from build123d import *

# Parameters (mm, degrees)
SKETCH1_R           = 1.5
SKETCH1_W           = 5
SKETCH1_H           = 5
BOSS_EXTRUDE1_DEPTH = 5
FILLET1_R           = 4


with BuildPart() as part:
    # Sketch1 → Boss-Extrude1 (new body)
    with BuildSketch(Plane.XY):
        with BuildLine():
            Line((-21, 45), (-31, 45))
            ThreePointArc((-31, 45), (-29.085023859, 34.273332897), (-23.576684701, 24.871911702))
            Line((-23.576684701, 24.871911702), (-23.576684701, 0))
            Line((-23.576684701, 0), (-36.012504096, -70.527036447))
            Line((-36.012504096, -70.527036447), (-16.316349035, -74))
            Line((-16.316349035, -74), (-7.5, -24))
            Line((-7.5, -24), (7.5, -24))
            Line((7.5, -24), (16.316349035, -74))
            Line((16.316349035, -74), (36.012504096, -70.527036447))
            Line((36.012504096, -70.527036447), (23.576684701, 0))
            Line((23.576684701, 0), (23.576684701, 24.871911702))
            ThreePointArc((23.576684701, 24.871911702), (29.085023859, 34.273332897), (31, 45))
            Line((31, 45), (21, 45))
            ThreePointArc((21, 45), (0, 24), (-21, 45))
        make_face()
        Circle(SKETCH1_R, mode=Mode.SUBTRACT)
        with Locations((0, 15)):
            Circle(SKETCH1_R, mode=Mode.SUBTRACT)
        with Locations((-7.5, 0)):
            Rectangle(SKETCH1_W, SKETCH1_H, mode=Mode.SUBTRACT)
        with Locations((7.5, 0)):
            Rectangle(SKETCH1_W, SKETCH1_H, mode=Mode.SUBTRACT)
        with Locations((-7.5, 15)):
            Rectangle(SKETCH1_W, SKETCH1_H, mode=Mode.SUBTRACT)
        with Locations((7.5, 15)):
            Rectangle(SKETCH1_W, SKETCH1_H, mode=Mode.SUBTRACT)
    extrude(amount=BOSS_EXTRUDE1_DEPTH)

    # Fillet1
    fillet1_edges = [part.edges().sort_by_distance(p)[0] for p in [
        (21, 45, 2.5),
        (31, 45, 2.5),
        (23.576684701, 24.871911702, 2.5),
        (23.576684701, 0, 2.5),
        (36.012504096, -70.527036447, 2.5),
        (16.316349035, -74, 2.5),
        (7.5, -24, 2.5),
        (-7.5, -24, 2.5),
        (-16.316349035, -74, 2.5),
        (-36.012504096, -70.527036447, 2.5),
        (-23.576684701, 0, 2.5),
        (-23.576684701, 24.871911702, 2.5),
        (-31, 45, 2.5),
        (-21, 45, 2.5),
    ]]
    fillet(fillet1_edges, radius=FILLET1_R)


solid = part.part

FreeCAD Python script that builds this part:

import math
import FreeCAD as App
import Part
import Sketcher

V = App.Vector
Q = App.Units.Quantity


def edges_at(feature, points):
    """Names of the edges that pass closest to the given points."""
    edges = feature.Shape.Edges
    near = lambda p: min(range(len(edges)), key=lambda i: edges[i].distToShape(Part.Vertex(*p))[0])
    return sorted({f"Edge{near(p) + 1}" for p in points})


def add_polygon(sketch, points):
    """Adds a closed chain of lines whose ends are joined by coincident constraints."""
    first, n = sketch.GeometryCount, len(points)
    for a, b in zip(points, points[1:] + points[:1]):
        sketch.addGeometry(Part.LineSegment(App.Vector(*a, 0), App.Vector(*b, 0)), False)
    for i in range(n):
        sketch.addConstraint(Sketcher.Constraint("Coincident", first + i, 2, first + (i + 1) % n, 1))

doc = App.newDocument("Part")
body = doc.addObject("PartDesign::Body", "Body")

# Sketch on XY plane
sketch1 = body.newObject("Sketcher::SketchObject", "Sketch")
sketch1.AttachmentSupport = (doc.getObject("XY_Plane"), [""])
sketch1.MapMode = "FlatFace"
sketch1.addGeometry(Part.LineSegment(V(-21, 45, 0), V(-31, 45, 0)), False)  # 0
sketch1.addGeometry(Part.ArcOfCircle(Part.Circle(V(0, 45, 0), V(0, 0, 1), 31), math.radians(180), math.radians(220.488331)), False)  # 1
sketch1.addGeometry(Part.LineSegment(V(-23.576685, 24.871912, 0), V(-23.576685, 0, 0)), False)  # 2
sketch1.addGeometry(Part.LineSegment(V(-23.576685, 0, 0), V(-36.012504, -70.527036, 0)), False)  # 3
sketch1.addGeometry(Part.LineSegment(V(-36.012504, -70.527036, 0), V(-16.316349, -74, 0)), False)  # 4
sketch1.addGeometry(Part.LineSegment(V(-16.316349, -74, 0), V(-7.5, -24, 0)), False)  # 5
sketch1.addGeometry(Part.LineSegment(V(-7.5, -24, 0), V(7.5, -24, 0)), False)  # 6
sketch1.addGeometry(Part.LineSegment(V(7.5, -24, 0), V(16.316349, -74, 0)), False)  # 7
sketch1.addGeometry(Part.LineSegment(V(16.316349, -74, 0), V(36.012504, -70.527036, 0)), False)  # 8
sketch1.addGeometry(Part.LineSegment(V(36.012504, -70.527036, 0), V(23.576685, 0, 0)), False)  # 9
sketch1.addGeometry(Part.LineSegment(V(23.576685, 0, 0), V(23.576685, 24.871912, 0)), False)  # 10
sketch1.addGeometry(Part.ArcOfCircle(Part.Circle(V(0, 45, 0), V(0, 0, 1), 31), math.radians(-40.488331), math.radians(0)), False)  # 11
sketch1.addGeometry(Part.LineSegment(V(31, 45, 0), V(21, 45, 0)), False)  # 12
sketch1.addGeometry(Part.ArcOfCircle(Part.Circle(V(0, 45, 0), V(0, 0, 1), 21), math.radians(180), math.radians(360)), False)  # 13
add_polygon(sketch1, [(-5, -2.5), (-10, -2.5), (-10, 2.5), (-5, 2.5)])  # lines 14-17
sketch1.addGeometry(Part.Circle(V(0, 0, 0), V(0, 0, 1), 1.5), False)  # 18
add_polygon(sketch1, [(10, -2.5), (5, -2.5), (5, 2.5), (10, 2.5)])  # lines 19-22
add_polygon(sketch1, [(-5, 12.5), (-10, 12.5), (-10, 17.5), (-5, 17.5)])  # lines 23-26
sketch1.addGeometry(Part.Circle(V(0, 15, 0), V(0, 0, 1), 1.5), False)  # 27
add_polygon(sketch1, [(10, 12.5), (5, 12.5), (5, 17.5), (10, 17.5)])  # lines 28-31
sketch1.addConstraint(Sketcher.Constraint("Coincident", 0, 2, 1, 1))
sketch1.addConstraint(Sketcher.Constraint("Coincident", 1, 2, 2, 1))
sketch1.addConstraint(Sketcher.Constraint("Coincident", 2, 2, 3, 1))
sketch1.addConstraint(Sketcher.Constraint("Coincident", 3, 2, 4, 1))
sketch1.addConstraint(Sketcher.Constraint("Coincident", 4, 2, 5, 1))
sketch1.addConstraint(Sketcher.Constraint("Coincident", 5, 2, 6, 1))
sketch1.addConstraint(Sketcher.Constraint("Coincident", 6, 2, 7, 1))
sketch1.addConstraint(Sketcher.Constraint("Coincident", 7, 2, 8, 1))
sketch1.addConstraint(Sketcher.Constraint("Coincident", 8, 2, 9, 1))
sketch1.addConstraint(Sketcher.Constraint("Coincident", 9, 2, 10, 1))
sketch1.addConstraint(Sketcher.Constraint("Coincident", 10, 2, 11, 1))
sketch1.addConstraint(Sketcher.Constraint("Coincident", 11, 2, 12, 1))
sketch1.addConstraint(Sketcher.Constraint("Coincident", 12, 2, 13, 2))
sketch1.addConstraint(Sketcher.Constraint("Coincident", 13, 1, 0, 1))
sketch1.addConstraint(Sketcher.Constraint("Horizontal", 0))
sketch1.addConstraint(Sketcher.Constraint("Vertical", 2))
sketch1.addConstraint(Sketcher.Constraint("Horizontal", 6))
sketch1.addConstraint(Sketcher.Constraint("Vertical", 10))
sketch1.addConstraint(Sketcher.Constraint("Horizontal", 12))
sketch1.addConstraint(Sketcher.Constraint("Horizontal", 14))
sketch1.addConstraint(Sketcher.Constraint("Vertical", 15))
sketch1.addConstraint(Sketcher.Constraint("Horizontal", 16))
sketch1.addConstraint(Sketcher.Constraint("Vertical", 17))
sketch1.addConstraint(Sketcher.Constraint("Horizontal", 19))
sketch1.addConstraint(Sketcher.Constraint("Vertical", 20))
sketch1.addConstraint(Sketcher.Constraint("Horizontal", 21))
sketch1.addConstraint(Sketcher.Constraint("Vertical", 22))
sketch1.addConstraint(Sketcher.Constraint("Horizontal", 23))
sketch1.addConstraint(Sketcher.Constraint("Vertical", 24))
sketch1.addConstraint(Sketcher.Constraint("Horizontal", 25))
sketch1.addConstraint(Sketcher.Constraint("Vertical", 26))
sketch1.addConstraint(Sketcher.Constraint("Horizontal", 28))
sketch1.addConstraint(Sketcher.Constraint("Vertical", 29))
sketch1.addConstraint(Sketcher.Constraint("Horizontal", 30))
sketch1.addConstraint(Sketcher.Constraint("Vertical", 31))
sketch1.addConstraint(Sketcher.Constraint("Coincident", 18, 3, -1, 1))
sketch1.addConstraint(Sketcher.Constraint("Coincident", 11, 3, 1, 3))
sketch1.addConstraint(Sketcher.Constraint("Coincident", 13, 3, 1, 3))
sketch1.addConstraint(Sketcher.Constraint("Equal", 1, 11))
sketch1.addConstraint(Sketcher.Constraint("Equal", 18, 27))
sketch1.addConstraint(Sketcher.Constraint("Symmetric", 2, 2, 9, 2, -1, 1))
sketch1.addConstraint(Sketcher.Constraint("Symmetric", 16, 2, 19, 2, -1, 1))
sketch1.addConstraint(Sketcher.Constraint("Symmetric", 14, 2, 21, 2, -1, 1))
sketch1.addConstraint(Sketcher.Constraint("Symmetric", 4, 2, 7, 2, -2))
sketch1.addConstraint(Sketcher.Constraint("Symmetric", 3, 2, 8, 2, -2))
sketch1.addConstraint(Sketcher.Constraint("Symmetric", 0, 2, 11, 2, -2))
sketch1.addConstraint(Sketcher.Constraint("Symmetric", 26, 2, 28, 2, -2))
sketch1.addConstraint(Sketcher.Constraint("Symmetric", 24, 2, 30, 2, -2))
sketch1.addConstraint(Sketcher.Constraint("PointOnObject", 27, 3, -2))
sketch1.addConstraint(Sketcher.Constraint("PointOnObject", 2, 2, -1))
sketch1.addConstraint(Sketcher.Constraint("Perpendicular", 3, 4))
sketch1.addConstraint(Sketcher.Constraint("Perpendicular", 4, 5))
sketch1.addConstraint(Sketcher.Constraint("Perpendicular", 7, 8))
sketch1.addConstraint(Sketcher.Constraint("Horizontal", 13, 3, 0, 2))
sketch1.addConstraint(Sketcher.Constraint("Horizontal", 17, 2, 19, 2))
sketch1.addConstraint(Sketcher.Constraint("Vertical", 15, 2, 23, 2))
sketch1.addConstraint(Sketcher.Constraint("Vertical", 17, 2, 25, 2))
sketch1.addConstraint(Sketcher.Constraint("Equal", 30, 15))
sketch1.addConstraint(Sketcher.Constraint("Equal", 22, 24))
sketch1.addConstraint(Sketcher.Constraint("Diameter", 18, Q("3 mm")))
sketch1.addConstraint(Sketcher.Constraint("Radius", 1, Q("31 mm")))
sketch1.addConstraint(Sketcher.Constraint("Radius", 13, Q("21 mm")))
sketch1.addConstraint(Sketcher.Constraint("DistanceX", 6, 1, 6, 2, Q("15 mm")))
sketch1.addConstraint(Sketcher.Constraint("DistanceX", 14, 2, 14, 1, Q("5 mm")))
sketch1.addConstraint(Sketcher.Constraint("Angle", 3, Q("-100 deg")))
sketch1.addConstraint(Sketcher.Constraint("Distance", 4, Q("20 mm")))
sketch1.addConstraint(Sketcher.Constraint("DistanceY", -1, 1, 1, 3, Q("45 mm")))
sketch1.addConstraint(Sketcher.Constraint("DistanceY", -1, 1, 27, 3, Q("15 mm")))
sketch1.addConstraint(Sketcher.Constraint("DistanceY", 4, 2, -1, 1, Q("74 mm")))
sketch1.addConstraint(Sketcher.Constraint("DistanceY", 5, 2, -1, 1, Q("24 mm")))
sketch1.addConstraint(Sketcher.Constraint("DistanceX", 14, 2, -1, 1, Q("10 mm")))
sketch1.addConstraint(Sketcher.Constraint("DistanceY", 15, 2, 23, 2, Q("10 mm")))
pad1 = body.newObject("PartDesign::Pad", "Pad")
pad1.Profile = sketch1
pad1.Length = 5
doc.recompute()

fillet = body.newObject("PartDesign::Fillet", "Fillet")
fillet.Base = (pad1, edges_at(pad1, [
    (21, 45, 2.5),
    (31, 45, 2.5),
    (23.577, 24.872, 2.5),
    (23.577, 0, 2.5),
    (36.013, -70.527, 2.5),
    (16.316, -74, 2.5),
    (7.5, -24, 2.5),
    (-7.5, -24, 2.5),
    (-16.316, -74, 2.5),
    (-36.013, -70.527, 2.5),
    (-23.577, 0, 2.5),
    (-23.577, 24.872, 2.5),
    (-31, 45, 2.5),
    (-21, 45, 2.5),
]))
fillet.Radius = 4

doc.recompute()
